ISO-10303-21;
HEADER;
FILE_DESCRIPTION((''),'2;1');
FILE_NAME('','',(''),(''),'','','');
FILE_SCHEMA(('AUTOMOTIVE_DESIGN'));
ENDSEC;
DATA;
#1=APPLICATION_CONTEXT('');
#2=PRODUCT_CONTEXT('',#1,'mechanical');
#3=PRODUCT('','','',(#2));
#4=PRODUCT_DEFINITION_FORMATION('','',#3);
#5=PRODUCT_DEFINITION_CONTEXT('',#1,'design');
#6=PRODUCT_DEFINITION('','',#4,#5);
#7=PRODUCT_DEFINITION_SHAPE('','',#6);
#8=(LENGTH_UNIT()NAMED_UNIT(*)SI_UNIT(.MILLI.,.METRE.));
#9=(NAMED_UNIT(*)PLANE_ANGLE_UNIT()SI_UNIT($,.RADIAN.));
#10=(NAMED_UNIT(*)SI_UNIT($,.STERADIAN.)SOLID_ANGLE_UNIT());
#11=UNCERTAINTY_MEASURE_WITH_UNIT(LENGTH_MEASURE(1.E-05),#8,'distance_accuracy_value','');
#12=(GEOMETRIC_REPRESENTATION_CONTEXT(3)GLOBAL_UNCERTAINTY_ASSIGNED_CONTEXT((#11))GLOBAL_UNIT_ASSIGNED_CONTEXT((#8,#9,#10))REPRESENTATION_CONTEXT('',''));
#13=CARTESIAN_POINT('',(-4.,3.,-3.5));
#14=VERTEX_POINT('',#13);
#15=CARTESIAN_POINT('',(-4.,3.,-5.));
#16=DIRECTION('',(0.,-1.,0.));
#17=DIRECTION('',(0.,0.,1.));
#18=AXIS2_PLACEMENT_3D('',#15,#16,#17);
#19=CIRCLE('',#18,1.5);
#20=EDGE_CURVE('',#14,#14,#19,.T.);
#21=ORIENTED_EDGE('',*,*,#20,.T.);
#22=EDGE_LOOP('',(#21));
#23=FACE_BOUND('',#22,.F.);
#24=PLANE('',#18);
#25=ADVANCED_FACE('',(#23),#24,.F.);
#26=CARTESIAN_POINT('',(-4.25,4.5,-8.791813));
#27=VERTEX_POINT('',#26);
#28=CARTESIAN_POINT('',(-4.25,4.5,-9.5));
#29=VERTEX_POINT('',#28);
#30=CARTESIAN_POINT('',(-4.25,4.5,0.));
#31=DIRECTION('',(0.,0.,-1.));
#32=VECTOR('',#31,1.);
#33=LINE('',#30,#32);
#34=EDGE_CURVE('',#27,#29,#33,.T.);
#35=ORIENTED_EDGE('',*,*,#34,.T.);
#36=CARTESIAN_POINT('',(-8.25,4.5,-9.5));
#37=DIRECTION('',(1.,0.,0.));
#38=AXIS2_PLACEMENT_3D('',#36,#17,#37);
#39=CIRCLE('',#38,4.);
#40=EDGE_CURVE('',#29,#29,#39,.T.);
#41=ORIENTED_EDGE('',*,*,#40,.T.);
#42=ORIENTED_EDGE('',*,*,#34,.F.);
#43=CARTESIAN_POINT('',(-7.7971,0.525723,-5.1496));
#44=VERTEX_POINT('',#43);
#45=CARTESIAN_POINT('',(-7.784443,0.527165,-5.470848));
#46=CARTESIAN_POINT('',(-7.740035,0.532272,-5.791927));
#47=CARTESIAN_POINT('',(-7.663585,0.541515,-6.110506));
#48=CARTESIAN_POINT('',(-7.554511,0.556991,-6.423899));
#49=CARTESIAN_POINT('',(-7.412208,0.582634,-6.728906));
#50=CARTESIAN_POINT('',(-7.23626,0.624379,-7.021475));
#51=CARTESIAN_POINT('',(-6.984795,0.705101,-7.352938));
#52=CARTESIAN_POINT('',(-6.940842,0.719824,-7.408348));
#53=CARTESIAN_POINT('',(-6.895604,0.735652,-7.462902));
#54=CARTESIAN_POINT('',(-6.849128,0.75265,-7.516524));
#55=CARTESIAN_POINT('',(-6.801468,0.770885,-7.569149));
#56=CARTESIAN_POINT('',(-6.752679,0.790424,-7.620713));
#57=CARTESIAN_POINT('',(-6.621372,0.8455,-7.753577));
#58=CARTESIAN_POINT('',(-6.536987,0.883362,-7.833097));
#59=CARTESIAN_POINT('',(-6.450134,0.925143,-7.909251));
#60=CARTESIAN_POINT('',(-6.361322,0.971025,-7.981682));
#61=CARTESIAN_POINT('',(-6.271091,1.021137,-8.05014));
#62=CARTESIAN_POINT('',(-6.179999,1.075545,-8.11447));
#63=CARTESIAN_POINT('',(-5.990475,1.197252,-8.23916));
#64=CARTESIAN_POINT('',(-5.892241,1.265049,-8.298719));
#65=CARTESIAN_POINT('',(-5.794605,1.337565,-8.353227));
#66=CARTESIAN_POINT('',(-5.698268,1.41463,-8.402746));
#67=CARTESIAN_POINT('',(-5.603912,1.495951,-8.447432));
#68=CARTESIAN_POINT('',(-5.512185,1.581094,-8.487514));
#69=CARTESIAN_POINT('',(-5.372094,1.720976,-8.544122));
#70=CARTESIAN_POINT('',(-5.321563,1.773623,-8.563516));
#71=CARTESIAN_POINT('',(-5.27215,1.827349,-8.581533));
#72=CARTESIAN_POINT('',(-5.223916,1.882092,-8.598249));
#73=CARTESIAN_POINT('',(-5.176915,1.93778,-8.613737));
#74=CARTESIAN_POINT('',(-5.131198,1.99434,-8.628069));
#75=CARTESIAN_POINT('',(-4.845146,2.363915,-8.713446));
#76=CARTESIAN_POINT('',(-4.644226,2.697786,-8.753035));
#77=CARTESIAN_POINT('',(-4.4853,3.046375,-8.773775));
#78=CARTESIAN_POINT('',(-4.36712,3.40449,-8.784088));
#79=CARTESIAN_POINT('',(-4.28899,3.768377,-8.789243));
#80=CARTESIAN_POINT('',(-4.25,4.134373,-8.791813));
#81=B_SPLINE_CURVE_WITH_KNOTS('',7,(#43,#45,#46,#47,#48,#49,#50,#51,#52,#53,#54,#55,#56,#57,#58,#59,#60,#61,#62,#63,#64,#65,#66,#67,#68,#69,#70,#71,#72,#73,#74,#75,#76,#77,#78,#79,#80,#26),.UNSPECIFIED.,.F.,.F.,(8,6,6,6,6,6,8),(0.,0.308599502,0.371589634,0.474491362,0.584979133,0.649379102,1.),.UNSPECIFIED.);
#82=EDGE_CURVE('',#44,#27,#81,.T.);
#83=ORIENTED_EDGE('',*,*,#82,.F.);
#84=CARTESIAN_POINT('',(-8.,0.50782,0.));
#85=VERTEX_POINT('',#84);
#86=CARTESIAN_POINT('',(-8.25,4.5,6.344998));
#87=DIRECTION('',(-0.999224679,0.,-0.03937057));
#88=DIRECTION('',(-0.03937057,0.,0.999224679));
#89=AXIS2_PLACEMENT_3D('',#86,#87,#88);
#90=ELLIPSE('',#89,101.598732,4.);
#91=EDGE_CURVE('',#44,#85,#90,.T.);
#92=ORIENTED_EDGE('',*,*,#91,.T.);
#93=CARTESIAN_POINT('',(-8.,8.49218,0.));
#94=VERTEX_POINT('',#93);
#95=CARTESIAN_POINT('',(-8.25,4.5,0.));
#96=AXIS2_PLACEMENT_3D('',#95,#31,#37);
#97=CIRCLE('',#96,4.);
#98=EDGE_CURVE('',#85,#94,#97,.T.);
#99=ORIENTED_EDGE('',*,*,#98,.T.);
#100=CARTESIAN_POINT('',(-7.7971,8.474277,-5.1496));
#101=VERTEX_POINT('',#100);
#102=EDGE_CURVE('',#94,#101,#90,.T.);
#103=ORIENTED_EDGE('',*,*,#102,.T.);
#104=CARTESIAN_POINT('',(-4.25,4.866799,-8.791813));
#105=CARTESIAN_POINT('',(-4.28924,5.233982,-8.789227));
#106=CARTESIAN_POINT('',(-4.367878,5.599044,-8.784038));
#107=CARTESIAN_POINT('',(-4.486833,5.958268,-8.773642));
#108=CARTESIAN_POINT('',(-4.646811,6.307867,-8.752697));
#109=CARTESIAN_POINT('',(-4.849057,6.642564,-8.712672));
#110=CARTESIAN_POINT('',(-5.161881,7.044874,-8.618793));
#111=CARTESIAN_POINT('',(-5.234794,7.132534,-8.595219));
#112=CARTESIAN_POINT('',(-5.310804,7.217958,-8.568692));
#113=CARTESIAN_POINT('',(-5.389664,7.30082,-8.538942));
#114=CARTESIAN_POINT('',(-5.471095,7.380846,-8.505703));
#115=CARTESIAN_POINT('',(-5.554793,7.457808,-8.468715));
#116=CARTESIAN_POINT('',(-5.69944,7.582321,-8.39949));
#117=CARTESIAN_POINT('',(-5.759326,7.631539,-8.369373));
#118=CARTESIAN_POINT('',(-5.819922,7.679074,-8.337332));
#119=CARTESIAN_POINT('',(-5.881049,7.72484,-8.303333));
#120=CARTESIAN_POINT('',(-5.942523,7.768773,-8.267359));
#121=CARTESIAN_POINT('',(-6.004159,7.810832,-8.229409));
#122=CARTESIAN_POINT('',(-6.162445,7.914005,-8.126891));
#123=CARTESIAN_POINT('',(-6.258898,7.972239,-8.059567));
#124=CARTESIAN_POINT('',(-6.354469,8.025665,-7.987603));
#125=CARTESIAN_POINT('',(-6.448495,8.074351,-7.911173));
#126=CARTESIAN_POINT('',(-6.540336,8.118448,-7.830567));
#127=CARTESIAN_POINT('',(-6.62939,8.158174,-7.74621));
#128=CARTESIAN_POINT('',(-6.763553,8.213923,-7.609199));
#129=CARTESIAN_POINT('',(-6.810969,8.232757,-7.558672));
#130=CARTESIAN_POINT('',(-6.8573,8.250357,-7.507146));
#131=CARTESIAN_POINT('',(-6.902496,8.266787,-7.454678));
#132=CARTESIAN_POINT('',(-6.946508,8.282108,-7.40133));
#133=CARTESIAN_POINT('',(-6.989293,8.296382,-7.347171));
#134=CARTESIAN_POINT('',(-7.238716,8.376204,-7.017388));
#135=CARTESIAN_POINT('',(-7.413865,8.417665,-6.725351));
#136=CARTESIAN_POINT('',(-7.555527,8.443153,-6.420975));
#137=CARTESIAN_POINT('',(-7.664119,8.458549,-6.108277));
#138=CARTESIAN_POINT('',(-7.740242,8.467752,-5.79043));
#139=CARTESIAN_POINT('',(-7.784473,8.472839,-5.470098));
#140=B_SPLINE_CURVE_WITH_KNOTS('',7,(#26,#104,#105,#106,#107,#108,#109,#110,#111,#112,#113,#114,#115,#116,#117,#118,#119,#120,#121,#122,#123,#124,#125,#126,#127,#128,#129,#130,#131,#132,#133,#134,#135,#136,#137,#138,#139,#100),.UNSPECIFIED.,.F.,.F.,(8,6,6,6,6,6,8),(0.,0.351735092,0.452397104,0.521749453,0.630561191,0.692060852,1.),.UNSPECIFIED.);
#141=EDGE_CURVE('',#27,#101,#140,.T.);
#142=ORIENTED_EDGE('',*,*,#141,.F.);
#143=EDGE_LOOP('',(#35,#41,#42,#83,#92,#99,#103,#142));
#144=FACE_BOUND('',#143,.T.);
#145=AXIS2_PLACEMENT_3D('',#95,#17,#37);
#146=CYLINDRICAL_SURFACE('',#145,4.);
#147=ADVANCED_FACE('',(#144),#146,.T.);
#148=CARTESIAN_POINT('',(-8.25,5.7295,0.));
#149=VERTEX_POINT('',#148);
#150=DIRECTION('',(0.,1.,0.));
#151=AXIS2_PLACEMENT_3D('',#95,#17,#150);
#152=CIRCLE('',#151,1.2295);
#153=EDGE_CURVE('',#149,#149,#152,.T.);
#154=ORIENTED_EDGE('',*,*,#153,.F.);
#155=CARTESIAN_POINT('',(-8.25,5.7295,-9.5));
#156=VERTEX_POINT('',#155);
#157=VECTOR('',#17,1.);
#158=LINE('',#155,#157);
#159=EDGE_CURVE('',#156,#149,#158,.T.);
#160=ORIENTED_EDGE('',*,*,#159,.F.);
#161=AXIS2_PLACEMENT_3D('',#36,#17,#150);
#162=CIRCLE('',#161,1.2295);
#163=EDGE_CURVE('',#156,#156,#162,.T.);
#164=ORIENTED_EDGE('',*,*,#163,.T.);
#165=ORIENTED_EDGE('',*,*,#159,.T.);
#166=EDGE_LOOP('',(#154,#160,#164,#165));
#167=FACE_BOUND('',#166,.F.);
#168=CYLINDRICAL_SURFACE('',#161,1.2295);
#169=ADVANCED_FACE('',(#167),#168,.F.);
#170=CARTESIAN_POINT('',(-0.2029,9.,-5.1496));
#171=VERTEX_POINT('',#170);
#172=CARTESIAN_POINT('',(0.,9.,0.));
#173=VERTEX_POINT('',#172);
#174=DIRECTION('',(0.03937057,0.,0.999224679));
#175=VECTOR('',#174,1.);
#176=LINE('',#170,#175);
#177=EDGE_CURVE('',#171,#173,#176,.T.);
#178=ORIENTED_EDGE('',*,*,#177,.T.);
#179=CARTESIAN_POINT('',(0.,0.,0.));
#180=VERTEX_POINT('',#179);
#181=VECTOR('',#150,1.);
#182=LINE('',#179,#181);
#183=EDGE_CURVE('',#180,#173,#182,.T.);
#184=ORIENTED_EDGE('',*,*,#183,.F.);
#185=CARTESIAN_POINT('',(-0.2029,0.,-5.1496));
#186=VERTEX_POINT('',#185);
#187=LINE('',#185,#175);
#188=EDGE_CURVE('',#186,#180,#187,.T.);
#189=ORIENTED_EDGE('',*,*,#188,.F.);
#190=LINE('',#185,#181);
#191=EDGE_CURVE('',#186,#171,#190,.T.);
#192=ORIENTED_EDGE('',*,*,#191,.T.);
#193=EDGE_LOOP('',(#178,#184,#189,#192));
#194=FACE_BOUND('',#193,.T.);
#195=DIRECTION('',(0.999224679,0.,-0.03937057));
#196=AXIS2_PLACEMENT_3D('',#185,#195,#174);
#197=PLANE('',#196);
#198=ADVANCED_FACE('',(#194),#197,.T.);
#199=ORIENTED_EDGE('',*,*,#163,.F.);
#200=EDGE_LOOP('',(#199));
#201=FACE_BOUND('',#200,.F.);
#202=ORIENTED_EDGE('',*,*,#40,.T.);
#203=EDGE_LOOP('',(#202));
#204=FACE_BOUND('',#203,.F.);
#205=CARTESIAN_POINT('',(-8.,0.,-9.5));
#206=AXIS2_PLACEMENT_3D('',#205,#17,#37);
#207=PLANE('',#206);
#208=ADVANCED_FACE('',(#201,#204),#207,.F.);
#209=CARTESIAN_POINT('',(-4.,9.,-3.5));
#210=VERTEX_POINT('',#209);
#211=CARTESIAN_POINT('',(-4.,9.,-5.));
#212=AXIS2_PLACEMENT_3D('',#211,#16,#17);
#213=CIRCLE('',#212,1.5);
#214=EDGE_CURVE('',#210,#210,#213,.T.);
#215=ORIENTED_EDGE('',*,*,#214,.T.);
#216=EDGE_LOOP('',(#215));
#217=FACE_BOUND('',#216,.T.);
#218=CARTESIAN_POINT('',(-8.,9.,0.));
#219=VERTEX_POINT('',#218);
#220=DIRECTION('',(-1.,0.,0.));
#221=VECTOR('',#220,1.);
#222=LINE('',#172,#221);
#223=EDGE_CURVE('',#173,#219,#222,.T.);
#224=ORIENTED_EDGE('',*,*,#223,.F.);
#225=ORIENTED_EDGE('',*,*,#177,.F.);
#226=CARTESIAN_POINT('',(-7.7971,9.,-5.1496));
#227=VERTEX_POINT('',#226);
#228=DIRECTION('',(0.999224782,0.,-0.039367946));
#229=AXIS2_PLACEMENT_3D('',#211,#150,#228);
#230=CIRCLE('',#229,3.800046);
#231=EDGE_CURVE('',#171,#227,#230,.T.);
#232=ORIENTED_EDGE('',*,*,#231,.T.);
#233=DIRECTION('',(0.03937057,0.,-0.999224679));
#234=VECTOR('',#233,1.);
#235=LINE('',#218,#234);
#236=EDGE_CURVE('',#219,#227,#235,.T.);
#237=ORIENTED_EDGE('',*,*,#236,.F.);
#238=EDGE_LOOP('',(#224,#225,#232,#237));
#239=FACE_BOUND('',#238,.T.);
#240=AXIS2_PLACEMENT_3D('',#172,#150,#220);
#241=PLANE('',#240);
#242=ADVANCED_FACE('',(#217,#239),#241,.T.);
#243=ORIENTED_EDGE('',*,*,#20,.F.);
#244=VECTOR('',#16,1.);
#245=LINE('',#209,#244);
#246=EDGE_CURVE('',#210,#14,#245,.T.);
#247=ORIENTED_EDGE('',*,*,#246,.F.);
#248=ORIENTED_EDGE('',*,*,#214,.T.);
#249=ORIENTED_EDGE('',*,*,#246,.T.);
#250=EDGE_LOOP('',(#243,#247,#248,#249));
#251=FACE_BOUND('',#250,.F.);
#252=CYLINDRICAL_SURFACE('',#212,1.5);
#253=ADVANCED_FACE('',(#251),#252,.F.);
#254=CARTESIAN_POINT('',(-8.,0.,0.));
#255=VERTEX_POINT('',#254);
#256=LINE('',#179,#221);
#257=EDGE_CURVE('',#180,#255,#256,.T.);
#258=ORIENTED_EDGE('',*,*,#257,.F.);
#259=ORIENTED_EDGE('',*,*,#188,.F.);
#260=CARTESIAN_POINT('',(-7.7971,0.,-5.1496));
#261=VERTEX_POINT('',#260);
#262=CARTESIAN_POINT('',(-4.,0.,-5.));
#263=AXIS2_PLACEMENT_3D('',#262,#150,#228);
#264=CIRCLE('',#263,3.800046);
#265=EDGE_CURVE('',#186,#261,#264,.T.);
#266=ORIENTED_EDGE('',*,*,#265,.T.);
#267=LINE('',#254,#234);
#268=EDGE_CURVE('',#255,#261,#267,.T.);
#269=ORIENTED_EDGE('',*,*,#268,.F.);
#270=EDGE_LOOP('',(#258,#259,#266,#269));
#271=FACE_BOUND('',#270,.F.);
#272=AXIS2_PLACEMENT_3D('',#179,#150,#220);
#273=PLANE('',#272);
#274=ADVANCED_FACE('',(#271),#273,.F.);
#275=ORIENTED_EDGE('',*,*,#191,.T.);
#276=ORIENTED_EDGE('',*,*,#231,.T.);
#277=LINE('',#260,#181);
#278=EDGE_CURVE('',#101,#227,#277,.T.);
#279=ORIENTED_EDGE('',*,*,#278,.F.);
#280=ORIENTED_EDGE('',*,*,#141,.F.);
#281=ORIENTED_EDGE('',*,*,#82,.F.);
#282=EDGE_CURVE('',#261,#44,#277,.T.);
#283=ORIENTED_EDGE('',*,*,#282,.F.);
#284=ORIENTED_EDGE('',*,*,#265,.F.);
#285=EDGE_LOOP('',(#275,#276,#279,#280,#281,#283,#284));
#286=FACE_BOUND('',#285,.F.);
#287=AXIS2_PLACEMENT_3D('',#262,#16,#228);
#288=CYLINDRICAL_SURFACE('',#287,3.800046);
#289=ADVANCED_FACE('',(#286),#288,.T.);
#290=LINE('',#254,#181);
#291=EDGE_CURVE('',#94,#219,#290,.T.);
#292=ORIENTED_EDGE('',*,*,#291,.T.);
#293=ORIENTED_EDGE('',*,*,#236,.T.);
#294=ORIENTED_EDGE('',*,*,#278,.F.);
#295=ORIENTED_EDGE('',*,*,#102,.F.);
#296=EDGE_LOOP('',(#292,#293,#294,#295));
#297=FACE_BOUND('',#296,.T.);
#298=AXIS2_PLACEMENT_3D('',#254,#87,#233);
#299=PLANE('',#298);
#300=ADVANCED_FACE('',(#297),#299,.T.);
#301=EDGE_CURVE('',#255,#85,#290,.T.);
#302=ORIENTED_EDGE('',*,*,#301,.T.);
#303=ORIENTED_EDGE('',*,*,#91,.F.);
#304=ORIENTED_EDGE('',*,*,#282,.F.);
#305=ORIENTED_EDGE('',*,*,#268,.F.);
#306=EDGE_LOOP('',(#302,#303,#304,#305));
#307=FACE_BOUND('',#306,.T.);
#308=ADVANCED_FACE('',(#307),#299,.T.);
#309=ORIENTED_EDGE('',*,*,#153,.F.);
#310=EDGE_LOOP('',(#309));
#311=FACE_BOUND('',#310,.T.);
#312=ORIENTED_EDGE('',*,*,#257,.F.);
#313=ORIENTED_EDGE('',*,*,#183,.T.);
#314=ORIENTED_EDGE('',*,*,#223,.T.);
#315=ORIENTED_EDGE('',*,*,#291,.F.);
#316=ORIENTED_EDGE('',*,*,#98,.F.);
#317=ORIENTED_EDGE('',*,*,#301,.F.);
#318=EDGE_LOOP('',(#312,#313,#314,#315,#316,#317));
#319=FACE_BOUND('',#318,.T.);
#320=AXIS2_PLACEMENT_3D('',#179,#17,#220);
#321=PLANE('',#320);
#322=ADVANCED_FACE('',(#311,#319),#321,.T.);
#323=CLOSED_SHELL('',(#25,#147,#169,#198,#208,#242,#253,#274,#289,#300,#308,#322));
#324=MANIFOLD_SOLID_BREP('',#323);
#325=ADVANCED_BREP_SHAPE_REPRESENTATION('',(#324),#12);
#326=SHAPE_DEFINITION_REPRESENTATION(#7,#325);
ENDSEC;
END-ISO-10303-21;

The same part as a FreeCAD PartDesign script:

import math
import FreeCAD as App
import Part
import Sketcher

V = App.Vector
Q = App.Units.Quantity

doc = App.newDocument("Part")
params = doc.addObject("Spreadsheet::Sheet", "Params")
for row, (alias, value) in enumerate([
    ("sketch1_radius", "3.8 mm"),
    ("sketch1_width", "8 mm"),
    ("pad1_length", "9 mm"),
    ("sketch2_diameter", "8 mm"),
    ("pad2_length", "9.5 mm"),
    ("sketch3_diameter", "3 mm"),
    ("hole_diameter", "3 mm"),
    ("hole_depth", "6 mm"),
    ("hole2_diameter", "2.459 mm"),
    ("hole2_depth", "12.05 mm"),
], start=1):
    params.set(f"A{row}", alias)
    params.set(f"B{row}", "=" + value)
    params.setAlias(f"B{row}", alias)

body = doc.addObject("PartDesign::Body", "Body")

# Sketch on XZ plane
sketch1 = doc.addObject("Sketcher::SketchObject", "Sketch")
body.addObject(sketch1)
sketch1.AttachmentSupport = (doc.XZ_Plane, [""])
sketch1.MapMode = "FlatFace"
sketch1.addGeometry(Part.LineSegment(V(-8, 0, 0), V(0, 0, 0)), False)
sketch1.addGeometry(Part.LineSegment(V(0, 0, 0), V(-0.2029, -5.1496, 0)), False)
sketch1.addGeometry(Part.ArcOfCircle(Part.Circle(V(-4, -5, 0), V(0, 0, 1), 3.800046), math.radians(-177.7438), math.radians(-2.2562)), False)
sketch1.addGeometry(Part.LineSegment(V(-7.7971, -5.1496, 0), V(-8, 0, 0)), False)
sketch1.addConstraint(Sketcher.Constraint("Coincident", 0, 2, 1, 1))
sketch1.addConstraint(Sketcher.Constraint("Tangent", 1, 2, 2, 2))
sketch1.addConstraint(Sketcher.Constraint("Tangent", 2, 1, 3, 1))
sketch1.addConstraint(Sketcher.Constraint("Coincident", 3, 2, 0, 1))
sketch1.addConstraint(Sketcher.Constraint("Horizontal", 0))
sketch1.addConstraint(Sketcher.Constraint("Coincident", 0, 2, -1, 1))
sketch1.addConstraint(Sketcher.Constraint("Horizontal", 1, 2, 2, 1))
sketch1.addConstraint(Sketcher.Constraint("Radius", 2, Q("3.8 mm")))
sketch1.addConstraint(Sketcher.Constraint("DistanceX", 0, 1, 0, 2, Q("8 mm")))
sketch1.addConstraint(Sketcher.Constraint("DistanceY", 2, 3, -1, 1, Q("5 mm")))
sketch1.setExpression("Constraints[7]", "Params.sketch1_radius")
sketch1.setExpression("Constraints[8]", "Params.sketch1_width")
pad1 = doc.addObject("PartDesign::Pad", "Pad")
body.addObject(pad1)
pad1.Profile = sketch1
pad1.setExpression("Length", "Params.pad1_length")
pad1.Reversed = True

# Sketch on XY plane
sketch2 = doc.addObject("Sketcher::SketchObject", "Sketch001")
body.addObject(sketch2)
sketch2.AttachmentSupport = (doc.XY_Plane, [""])
sketch2.MapMode = "FlatFace"
sketch2.addGeometry(Part.Circle(V(-8.25, 4.5, 0), V(0, 0, 1), 4), False)
sketch2.addConstraint(Sketcher.Constraint("Diameter", 0, Q("8 mm")))
sketch2.addConstraint(Sketcher.Constraint("DistanceY", -1, 1, 0, 3, Q("4.5 mm")))
sketch2.addConstraint(Sketcher.Constraint("DistanceX", 0, 3, -1, 1, Q("8.25 mm")))
sketch2.setExpression("Constraints[0]", "Params.sketch2_diameter")
pad2 = doc.addObject("PartDesign::Pad", "Pad001")
body.addObject(pad2)
pad2.Profile = sketch2
pad2.setExpression("Length", "Params.pad2_length")
pad2.Reversed = True

# Sketch on XZ plane
sketch3 = doc.addObject("Sketcher::SketchObject", "Sketch002")
body.addObject(sketch3)
sketch3.AttachmentSupport = (doc.XZ_Plane, [""])
sketch3.MapMode = "FlatFace"
sketch3.AttachmentOffset = App.Placement(V(0, 0, -9), App.Rotation())
sketch3.addGeometry(Part.Circle(V(-4, -5, 0), V(0, 0, 1), 1.5), False)
sketch3.addConstraint(Sketcher.Constraint("Diameter", 0, Q("3 mm")))
sketch3.addConstraint(Sketcher.Constraint("DistanceX", 0, 3, -1, 1, Q("4 mm")))
sketch3.addConstraint(Sketcher.Constraint("DistanceY", 0, 3, -1, 1, Q("5 mm")))
sketch3.setExpression("Constraints[0]", "Params.sketch3_diameter")
doc.recompute()
hole = doc.addObject("PartDesign::Hole", "Hole")
body.addObject(hole)
hole.Profile = sketch3
hole.ThreadType = "None"
hole.setExpression("Diameter", "Params.hole_diameter")
hole.DepthType = "Dimension"
hole.setExpression("Depth", "Params.hole_depth")
hole.DrillPoint = "Flat"
hole.Reversed = True

# Sketch on XY plane
sketch4 = doc.addObject("Sketcher::SketchObject", "Sketch003")
body.addObject(sketch4)
sketch4.AttachmentSupport = (doc.XY_Plane, [""])
sketch4.MapMode = "FlatFace"
sketch4.AttachmentOffset = App.Placement(V(0, 0, -9.5), App.Rotation())
sketch4.addGeometry(Part.Circle(V(-8.25, 4.5, 0), V(0, 0, 1), 1.2295), False)
sketch4.addConstraint(Sketcher.Constraint("Diameter", 0, Q("2.459 mm")))
sketch4.addConstraint(Sketcher.Constraint("DistanceY", -1, 1, 0, 3, Q("4.5 mm")))
sketch4.addConstraint(Sketcher.Constraint("DistanceX", 0, 3, -1, 1, Q("8.25 mm")))
doc.recompute()
hole2 = doc.addObject("PartDesign::Hole", "Hole001")
body.addObject(hole2)
hole2.Profile = sketch4
hole2.ThreadType = "None"
hole2.setExpression("Diameter", "Params.hole2_diameter")
hole2.DepthType = "Dimension"
hole2.setExpression("Depth", "Params.hole2_depth")
hole2.DrillPoint = "Flat"
hole2.Reversed = True

doc.recompute()
